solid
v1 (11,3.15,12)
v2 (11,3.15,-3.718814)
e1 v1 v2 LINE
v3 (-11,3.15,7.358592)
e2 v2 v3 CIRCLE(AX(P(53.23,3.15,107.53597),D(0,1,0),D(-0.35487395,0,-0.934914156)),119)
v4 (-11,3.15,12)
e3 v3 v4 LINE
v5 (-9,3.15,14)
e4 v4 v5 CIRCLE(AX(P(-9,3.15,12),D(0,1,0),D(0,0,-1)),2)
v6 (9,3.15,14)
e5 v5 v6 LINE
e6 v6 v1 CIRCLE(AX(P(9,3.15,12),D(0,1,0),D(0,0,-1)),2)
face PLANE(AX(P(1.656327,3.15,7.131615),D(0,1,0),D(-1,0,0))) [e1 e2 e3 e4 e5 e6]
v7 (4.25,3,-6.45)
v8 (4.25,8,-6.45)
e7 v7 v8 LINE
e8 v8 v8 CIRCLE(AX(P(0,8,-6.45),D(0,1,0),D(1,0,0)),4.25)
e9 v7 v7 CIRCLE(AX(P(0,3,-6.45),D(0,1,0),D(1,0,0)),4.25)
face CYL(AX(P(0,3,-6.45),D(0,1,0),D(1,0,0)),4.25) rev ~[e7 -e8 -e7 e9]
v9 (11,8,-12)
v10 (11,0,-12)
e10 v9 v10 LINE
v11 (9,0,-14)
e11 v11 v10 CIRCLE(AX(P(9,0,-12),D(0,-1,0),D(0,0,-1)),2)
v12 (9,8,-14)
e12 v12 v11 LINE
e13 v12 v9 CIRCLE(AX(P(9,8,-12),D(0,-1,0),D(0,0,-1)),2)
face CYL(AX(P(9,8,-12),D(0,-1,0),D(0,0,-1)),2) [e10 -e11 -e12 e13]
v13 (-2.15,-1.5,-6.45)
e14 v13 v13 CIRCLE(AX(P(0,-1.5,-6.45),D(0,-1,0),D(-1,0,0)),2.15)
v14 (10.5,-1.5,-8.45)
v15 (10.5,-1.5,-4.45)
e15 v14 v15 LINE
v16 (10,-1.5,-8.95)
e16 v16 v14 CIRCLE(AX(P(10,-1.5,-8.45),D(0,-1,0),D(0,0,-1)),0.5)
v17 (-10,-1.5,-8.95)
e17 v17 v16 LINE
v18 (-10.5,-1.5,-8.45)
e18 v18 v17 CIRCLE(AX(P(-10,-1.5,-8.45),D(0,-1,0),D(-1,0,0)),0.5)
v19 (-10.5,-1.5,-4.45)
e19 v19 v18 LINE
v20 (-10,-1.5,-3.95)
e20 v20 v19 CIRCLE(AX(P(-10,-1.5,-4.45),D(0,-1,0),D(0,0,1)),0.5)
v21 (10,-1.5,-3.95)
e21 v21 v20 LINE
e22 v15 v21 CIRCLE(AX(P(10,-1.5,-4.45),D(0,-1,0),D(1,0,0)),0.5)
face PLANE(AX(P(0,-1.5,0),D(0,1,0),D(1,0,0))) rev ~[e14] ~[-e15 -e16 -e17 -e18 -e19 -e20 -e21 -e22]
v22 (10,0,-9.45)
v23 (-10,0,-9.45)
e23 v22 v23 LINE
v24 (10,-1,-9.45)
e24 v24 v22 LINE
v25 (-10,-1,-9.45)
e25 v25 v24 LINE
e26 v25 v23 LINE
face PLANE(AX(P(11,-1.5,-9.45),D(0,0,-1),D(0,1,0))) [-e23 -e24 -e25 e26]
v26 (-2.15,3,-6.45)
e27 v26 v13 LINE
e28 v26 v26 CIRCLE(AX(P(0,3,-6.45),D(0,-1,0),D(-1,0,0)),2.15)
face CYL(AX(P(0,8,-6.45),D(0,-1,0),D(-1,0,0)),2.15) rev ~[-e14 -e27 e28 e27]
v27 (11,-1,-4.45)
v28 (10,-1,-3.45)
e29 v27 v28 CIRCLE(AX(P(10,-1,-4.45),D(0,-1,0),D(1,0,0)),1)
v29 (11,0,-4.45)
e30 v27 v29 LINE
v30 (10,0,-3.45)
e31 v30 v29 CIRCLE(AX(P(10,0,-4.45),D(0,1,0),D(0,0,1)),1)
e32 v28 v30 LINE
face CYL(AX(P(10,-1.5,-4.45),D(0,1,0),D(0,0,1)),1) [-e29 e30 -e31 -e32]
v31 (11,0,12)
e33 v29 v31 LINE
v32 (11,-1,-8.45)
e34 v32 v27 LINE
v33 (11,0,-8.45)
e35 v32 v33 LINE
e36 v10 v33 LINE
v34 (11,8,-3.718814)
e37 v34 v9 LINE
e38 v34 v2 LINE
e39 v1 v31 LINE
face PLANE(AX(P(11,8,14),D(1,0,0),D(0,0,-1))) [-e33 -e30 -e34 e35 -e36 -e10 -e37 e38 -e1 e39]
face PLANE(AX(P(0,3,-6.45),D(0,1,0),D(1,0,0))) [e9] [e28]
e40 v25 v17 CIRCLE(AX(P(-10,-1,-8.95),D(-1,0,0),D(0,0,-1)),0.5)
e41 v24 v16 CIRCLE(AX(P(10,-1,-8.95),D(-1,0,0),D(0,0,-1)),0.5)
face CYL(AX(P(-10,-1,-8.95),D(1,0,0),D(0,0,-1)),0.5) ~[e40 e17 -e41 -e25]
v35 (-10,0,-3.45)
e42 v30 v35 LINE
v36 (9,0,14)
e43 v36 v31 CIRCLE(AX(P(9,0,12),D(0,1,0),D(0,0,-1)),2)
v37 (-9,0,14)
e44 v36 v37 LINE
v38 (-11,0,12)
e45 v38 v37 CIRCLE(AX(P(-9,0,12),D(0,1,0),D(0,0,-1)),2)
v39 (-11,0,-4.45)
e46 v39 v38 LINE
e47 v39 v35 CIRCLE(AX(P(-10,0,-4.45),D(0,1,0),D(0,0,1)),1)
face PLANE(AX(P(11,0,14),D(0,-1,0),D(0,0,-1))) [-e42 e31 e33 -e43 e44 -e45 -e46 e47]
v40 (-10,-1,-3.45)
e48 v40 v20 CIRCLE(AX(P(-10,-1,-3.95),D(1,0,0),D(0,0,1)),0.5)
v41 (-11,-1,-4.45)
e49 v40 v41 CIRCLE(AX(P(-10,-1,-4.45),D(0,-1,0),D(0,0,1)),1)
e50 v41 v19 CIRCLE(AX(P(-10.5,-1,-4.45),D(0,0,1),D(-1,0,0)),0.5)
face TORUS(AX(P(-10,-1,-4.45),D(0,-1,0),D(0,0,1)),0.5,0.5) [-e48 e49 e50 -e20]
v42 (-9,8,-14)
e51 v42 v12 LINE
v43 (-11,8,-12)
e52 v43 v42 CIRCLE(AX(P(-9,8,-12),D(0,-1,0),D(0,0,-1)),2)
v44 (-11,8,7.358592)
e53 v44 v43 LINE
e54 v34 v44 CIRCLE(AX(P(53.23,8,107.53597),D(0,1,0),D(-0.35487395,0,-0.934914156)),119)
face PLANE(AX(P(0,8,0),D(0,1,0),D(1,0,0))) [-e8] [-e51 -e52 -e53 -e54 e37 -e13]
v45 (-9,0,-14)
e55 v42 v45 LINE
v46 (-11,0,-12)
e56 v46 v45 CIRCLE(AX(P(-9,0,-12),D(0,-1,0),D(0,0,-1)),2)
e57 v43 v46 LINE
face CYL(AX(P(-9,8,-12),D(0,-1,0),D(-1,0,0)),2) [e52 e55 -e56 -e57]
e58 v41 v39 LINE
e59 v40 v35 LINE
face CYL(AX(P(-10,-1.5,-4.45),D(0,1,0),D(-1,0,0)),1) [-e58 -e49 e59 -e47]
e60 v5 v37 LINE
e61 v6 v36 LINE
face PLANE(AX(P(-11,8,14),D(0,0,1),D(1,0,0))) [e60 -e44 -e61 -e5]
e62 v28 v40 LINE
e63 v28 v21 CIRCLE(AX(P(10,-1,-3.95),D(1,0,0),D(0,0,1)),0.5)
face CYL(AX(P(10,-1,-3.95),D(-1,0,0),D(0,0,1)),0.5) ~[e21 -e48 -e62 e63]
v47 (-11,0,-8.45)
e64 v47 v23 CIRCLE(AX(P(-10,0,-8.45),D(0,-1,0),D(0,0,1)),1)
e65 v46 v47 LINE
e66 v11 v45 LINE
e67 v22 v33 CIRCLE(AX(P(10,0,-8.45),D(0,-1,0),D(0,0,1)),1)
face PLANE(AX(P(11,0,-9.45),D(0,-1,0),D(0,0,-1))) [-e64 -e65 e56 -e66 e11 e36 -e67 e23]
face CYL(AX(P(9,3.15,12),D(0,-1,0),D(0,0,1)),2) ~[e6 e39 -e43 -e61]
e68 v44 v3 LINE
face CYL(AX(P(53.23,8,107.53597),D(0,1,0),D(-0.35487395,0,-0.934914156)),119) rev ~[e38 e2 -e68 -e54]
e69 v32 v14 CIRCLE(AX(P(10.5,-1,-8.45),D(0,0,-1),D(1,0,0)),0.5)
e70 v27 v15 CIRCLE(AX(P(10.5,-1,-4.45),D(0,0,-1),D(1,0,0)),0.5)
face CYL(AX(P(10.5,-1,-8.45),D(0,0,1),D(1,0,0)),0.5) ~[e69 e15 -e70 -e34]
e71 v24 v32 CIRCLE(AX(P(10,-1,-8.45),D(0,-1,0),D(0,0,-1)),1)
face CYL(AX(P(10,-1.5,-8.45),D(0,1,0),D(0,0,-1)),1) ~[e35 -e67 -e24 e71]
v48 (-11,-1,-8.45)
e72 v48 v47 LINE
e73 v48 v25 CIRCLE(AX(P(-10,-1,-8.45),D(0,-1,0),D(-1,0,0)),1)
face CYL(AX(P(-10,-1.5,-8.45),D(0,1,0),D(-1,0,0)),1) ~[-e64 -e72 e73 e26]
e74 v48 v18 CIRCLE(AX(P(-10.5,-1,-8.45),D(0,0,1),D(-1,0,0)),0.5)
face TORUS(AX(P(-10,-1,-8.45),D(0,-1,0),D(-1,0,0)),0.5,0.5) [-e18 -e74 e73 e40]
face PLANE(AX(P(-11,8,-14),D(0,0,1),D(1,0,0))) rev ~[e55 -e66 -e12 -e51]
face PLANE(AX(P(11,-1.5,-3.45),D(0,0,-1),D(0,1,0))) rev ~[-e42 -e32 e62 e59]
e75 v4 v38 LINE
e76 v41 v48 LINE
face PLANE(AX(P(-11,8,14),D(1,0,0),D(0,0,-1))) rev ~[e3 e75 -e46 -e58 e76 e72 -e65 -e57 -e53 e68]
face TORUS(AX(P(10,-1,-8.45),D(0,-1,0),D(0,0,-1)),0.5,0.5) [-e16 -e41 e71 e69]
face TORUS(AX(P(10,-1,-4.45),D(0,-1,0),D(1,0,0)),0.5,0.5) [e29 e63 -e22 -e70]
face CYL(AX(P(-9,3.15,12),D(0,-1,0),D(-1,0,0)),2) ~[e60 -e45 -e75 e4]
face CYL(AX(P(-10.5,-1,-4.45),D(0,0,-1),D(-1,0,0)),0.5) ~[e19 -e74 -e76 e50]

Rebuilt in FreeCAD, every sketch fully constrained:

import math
import FreeCAD as App
import Part
import Sketcher
from FreeCAD import Vector


def edges_at(feature, points):
    """Names of the edges that pass closest to the given points."""
    edges = feature.Shape.Edges
    near = lambda p: min(range(len(edges)), key=lambda i: edges[i].distToShape(Part.Vertex(*p))[0])
    return sorted({f"Edge{near(p) + 1}" for p in points})


def add_polygon(sketch, points):
    """Adds a closed chain of lines whose ends are joined by coincident constraints."""
    first, n = sketch.GeometryCount, len(points)
    for a, b in zip(points, points[1:] + points[:1]):
        sketch.addGeometry(Part.LineSegment(App.Vector(*a, 0), App.Vector(*b, 0)), False)
    for i in range(n):
        sketch.addConstraint(Sketcher.Constraint("Coincident", first + i, 2, first + (i + 1) % n, 1))

doc = App.newDocument("Part")
body = doc.addObject("PartDesign::Body", "Body")

# Sketch on XZ plane
sketch1 = body.newObject("Sketcher::SketchObject", "Sketch")
sketch1.AttachmentSupport = (doc.getObject("XZ_Plane"), [""])
sketch1.MapMode = "FlatFace"
sketch1.AttachmentOffset = App.Placement(Vector(0, 0, -8), App.Rotation())
add_polygon(sketch1, [(-11, -14), (-11, 14), (11, 14), (11, -14)])  # lines 0-3
sketch1.addConstraint([
    Sketcher.Constraint("Vertical", 0),
    Sketcher.Constraint("Horizontal", 1),
    Sketcher.Constraint("Vertical", 2),
    Sketcher.Constraint("Horizontal", 3),
    Sketcher.Constraint("Symmetric", 0, 2, 2, 2, -1, 1),
    Sketcher.Constraint("DistanceX", 1, 1, 1, 2, 22.0),
    Sketcher.Constraint("DistanceY", 0, 1, 0, 2, 28.0),
])
pad1 = body.newObject("PartDesign::Pad", "Pad")
pad1.Profile = sketch1
pad1.Length = 9.5

# Sketch on YZ plane
sketch2 = body.newObject("Sketcher::SketchObject", "Sketch001")
sketch2.AttachmentSupport = (doc.getObject("YZ_Plane"), [""])
sketch2.MapMode = "FlatFace"
sketch2.AttachmentOffset = App.Placement(Vector(0, 0, 11), App.Rotation())
add_polygon(sketch2, [(0, 14), (-1.5, 14), (-1.5, -3.5), (0, -3.5)])  # lines 0-3
sketch2.addConstraint([
    Sketcher.Constraint("Horizontal", 0),
    Sketcher.Constraint("Vertical", 1),
    Sketcher.Constraint("Horizontal", 2),
    Sketcher.Constraint("Vertical", 3),
    Sketcher.Constraint("PointOnObject", 2, 2, -2),
    Sketcher.Constraint("DistanceX", 0, 2, 0, 1, 1.5),
    Sketcher.Constraint("DistanceY", -1, 1, 0, 2, 14.0),
    Sketcher.Constraint("DistanceY", 1, 2, 1, 1, 17.45),
])
pocket1 = body.newObject("PartDesign::Pocket", "Pocket")
pocket1.Profile = sketch2
pocket1.Type = "ThroughAll"

# Sketch on XZ plane
sketch3 = body.newObject("Sketcher::SketchObject", "Sketch002")
sketch3.AttachmentSupport = (doc.getObject("XZ_Plane"), [""])
sketch3.MapMode = "FlatFace"
sketch3.AttachmentOffset = App.Placement(Vector(0, 0, -8), App.Rotation())
sketch3.addGeometry([
    Part.LineSegment(Vector(-11, 7, 0), Vector(-11, 14, 0)),
    Part.LineSegment(Vector(-11, 14, 0), Vector(11, 14, 0)),
    Part.LineSegment(Vector(11, 14, 0), Vector(11, -4, 0)),
    Part.ArcOfCircle(Part.Circle(Vector(53, 108, 0), Vector(0, 0, 1), 119), math.radians(-122.67), math.radians(-110.79)),
], False)
sketch3.addConstraint([
    Sketcher.Constraint("Coincident", 0, 2, 1, 1),
    Sketcher.Constraint("Coincident", 1, 2, 2, 1),
    Sketcher.Constraint("Coincident", 2, 2, 3, 2),
    Sketcher.Constraint("Coincident", 3, 1, 0, 1),
    Sketcher.Constraint("Vertical", 0),
    Sketcher.Constraint("Horizontal", 1),
    Sketcher.Constraint("Vertical", 2),
    Sketcher.Constraint("Radius", 3, 119.0),
    Sketcher.Constraint("DistanceX", 1, 1, 1, 2, 22.0),
    Sketcher.Constraint("DistanceX", 0, 2, -1, 1, 11.0),
    Sketcher.Constraint("DistanceY", -1, 1, 0, 2, 14.0),
    Sketcher.Constraint("DistanceX", -1, 1, 3, 3, 53.23),
    Sketcher.Constraint("DistanceY", 0, 1, 0, 2, 6.641408),
])
pocket2 = body.newObject("PartDesign::Pocket", "Pocket001")
pocket2.Profile = sketch3
pocket2.Length = 4.85
pocket2.Reversed = True

# Sketch on YZ plane
sketch4 = body.newObject("Sketcher::SketchObject", "Sketch003")
sketch4.AttachmentSupport = (doc.getObject("YZ_Plane"), [""])
sketch4.MapMode = "FlatFace"
sketch4.AttachmentOffset = App.Placement(Vector(0, 0, 11), App.Rotation())
add_polygon(sketch4, [(0, -9.4), (-1.5, -9.4), (-1.5, -14), (0, -14)])  # lines 0-3
sketch4.addConstraint([
    Sketcher.Constraint("Horizontal", 0),
    Sketcher.Constraint("Vertical", 1),
    Sketcher.Constraint("Horizontal", 2),
    Sketcher.Constraint("Vertical", 3),
    Sketcher.Constraint("PointOnObject", 2, 2, -2),
    Sketcher.Constraint("DistanceX", 0, 2, 0, 1, 1.5),
    Sketcher.Constraint("DistanceY", 1, 2, -1, 1, 14.0),
    Sketcher.Constraint("DistanceY", 1, 2, 1, 1, 4.55),
])
pocket3 = body.newObject("PartDesign::Pocket", "Pocket002")
pocket3.Profile = sketch4
pocket3.Type = "ThroughAll"

# Sketch on XZ plane
sketch5 = body.newObject("Sketcher::SketchObject", "Sketch004")
sketch5.AttachmentSupport = (doc.getObject("XZ_Plane"), [""])
sketch5.MapMode = "FlatFace"
sketch5.AttachmentOffset = App.Placement(Vector(0, 0, -8), App.Rotation())
sketch5.addGeometry(Part.Circle(Vector(0, -6.5, 0), Vector(0, 0, 1), 2.1), False)
sketch5.addConstraint([
    Sketcher.Constraint("PointOnObject", 0, 3, -2),
    Sketcher.Constraint("Diameter", 0, 4.3),
    Sketcher.Constraint("DistanceY", 0, 3, -1, 1, 6.45),
])
doc.recompute()
hole = body.newObject("PartDesign::Hole", "Hole")
hole.Profile = sketch5
hole.ThreadType = "None"
hole.Diameter = 4.3
hole.DepthType = "Dimension"
hole.Depth = 9.5
hole.DrillPoint = "Flat"
hole.HoleCutType = "Counterbore"
hole.HoleCutDiameter = 8.5
hole.HoleCutDepth = 5
hole.Reversed = True
doc.recompute()

fillet = body.newObject("PartDesign::Fillet", "Fillet")
fillet.Base = (hole, edges_at(hole, [
    (-11, -0.75, -3.45),
    (11, -0.75, -3.45),
    (-11, -0.75, -9.45),
    (11, -0.75, -9.45),
]))
fillet.Radius = 1
doc.recompute()

fillet2 = body.newObject("PartDesign::Fillet", "Fillet001")
fillet2.Base = (fillet, edges_at(fillet, [
    (0, -1.5, -3.45),
    (11, -1.5, -6.45),
    (-11, -1.5, -6.45),
    (0, -1.5, -9.45),
    (-10.707, -1.5, -9.157),
    (10.707, -1.5, -9.157),
    (-10.707, -1.5, -3.743),
    (10.707, -1.5, -3.743),
]))
fillet2.Radius = 0.5
doc.recompute()

fillet3 = body.newObject("PartDesign::Fillet", "Fillet002")
fillet3.Base = (fillet2, edges_at(fillet2, [
    (11, 1.575, 14),
    (-11, 1.575, 14),
    (11, 4, -14),
    (-11, 4, -14),
]))
fillet3.Radius = 2

doc.recompute()
